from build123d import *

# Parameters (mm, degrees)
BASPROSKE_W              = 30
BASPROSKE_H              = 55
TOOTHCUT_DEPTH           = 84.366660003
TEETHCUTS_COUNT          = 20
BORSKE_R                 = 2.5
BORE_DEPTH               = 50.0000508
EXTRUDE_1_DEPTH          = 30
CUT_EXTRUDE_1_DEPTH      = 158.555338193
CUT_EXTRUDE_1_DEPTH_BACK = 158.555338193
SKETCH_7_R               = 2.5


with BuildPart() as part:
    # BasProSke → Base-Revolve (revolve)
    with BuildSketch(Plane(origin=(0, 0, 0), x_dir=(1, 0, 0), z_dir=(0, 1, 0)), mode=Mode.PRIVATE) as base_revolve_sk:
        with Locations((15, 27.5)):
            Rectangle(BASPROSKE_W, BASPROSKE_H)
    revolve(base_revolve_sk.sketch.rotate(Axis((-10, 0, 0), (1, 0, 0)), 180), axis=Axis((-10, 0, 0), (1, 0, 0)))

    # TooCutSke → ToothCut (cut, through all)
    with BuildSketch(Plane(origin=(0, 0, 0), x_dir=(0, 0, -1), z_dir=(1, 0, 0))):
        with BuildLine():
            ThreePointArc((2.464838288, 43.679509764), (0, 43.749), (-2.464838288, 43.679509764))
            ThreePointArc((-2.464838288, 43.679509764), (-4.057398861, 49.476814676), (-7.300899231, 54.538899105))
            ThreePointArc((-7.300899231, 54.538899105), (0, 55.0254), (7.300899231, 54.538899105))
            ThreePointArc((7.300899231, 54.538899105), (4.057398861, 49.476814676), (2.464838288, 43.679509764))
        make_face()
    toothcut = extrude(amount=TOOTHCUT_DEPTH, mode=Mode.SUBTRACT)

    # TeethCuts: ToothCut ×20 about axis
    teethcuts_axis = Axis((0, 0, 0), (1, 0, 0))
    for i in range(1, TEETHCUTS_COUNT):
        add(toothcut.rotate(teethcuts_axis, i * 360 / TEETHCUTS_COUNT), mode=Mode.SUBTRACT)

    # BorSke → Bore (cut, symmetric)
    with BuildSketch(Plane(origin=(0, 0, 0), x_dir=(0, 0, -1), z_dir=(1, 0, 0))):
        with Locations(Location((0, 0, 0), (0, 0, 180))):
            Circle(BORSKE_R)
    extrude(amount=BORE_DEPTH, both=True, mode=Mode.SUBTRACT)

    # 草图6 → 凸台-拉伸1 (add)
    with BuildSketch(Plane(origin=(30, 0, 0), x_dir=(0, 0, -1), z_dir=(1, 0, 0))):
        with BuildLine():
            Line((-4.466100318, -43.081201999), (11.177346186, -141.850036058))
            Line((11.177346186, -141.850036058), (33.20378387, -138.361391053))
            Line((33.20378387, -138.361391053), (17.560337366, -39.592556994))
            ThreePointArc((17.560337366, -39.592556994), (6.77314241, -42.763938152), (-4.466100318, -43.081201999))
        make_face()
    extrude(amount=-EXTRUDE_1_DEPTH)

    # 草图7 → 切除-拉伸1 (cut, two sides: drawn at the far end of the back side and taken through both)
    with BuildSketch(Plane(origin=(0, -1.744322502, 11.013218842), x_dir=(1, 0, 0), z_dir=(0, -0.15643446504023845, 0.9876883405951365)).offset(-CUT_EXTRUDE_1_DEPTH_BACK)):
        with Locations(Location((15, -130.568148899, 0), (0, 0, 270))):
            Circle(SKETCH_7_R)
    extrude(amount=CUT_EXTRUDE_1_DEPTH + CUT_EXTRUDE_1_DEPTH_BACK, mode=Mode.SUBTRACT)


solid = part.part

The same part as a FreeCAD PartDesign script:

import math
import FreeCAD as App
import Part
import Sketcher
Q = App.Units.Quantity


def add_polygon(sketch, points):
    """Adds a closed chain of lines whose ends are joined by coincident constraints."""
    first, n = sketch.GeometryCount, len(points)
    for a, b in zip(points, points[1:] + points[:1]):
        sketch.addGeometry(Part.LineSegment(App.Vector(*a, 0), App.Vector(*b, 0)), False)
    for i in range(n):
        sketch.addConstraint(Sketcher.Constraint("Coincident", first + i, 2, first + (i + 1) % n, 1))

doc = App.newDocument("Part")
body = doc.addObject("PartDesign::Body", "Body")

# Sketch on XZ plane
sketch1 = doc.addObject("Sketcher::SketchObject", "Sketch")
body.addObject(sketch1)
sketch1.AttachmentSupport = (doc.XZ_Plane, [""])
sketch1.MapMode = "FlatFace"
add_polygon(sketch1, [(0, -55), (0, 0), (30, 0), (30, -55)])  # lines 0-3
sketch1.addConstraint(Sketcher.Constraint("Vertical", 0))
sketch1.addConstraint(Sketcher.Constraint("Horizontal", 1))
sketch1.addConstraint(Sketcher.Constraint("Vertical", 2))
sketch1.addConstraint(Sketcher.Constraint("Horizontal", 3))
sketch1.addConstraint(Sketcher.Constraint("Coincident", 0, 2, -1, 1))
sketch1.addConstraint(Sketcher.Constraint("DistanceX", 1, 1, 1, 2, 30.0))
sketch1.addConstraint(Sketcher.Constraint("DistanceY", 0, 1, 0, 2, 55.0))
revolution = doc.addObject("PartDesign::Revolution", "Revolution")
body.addObject(revolution)
revolution.Profile = sketch1
revolution.ReferenceAxis = (sketch1, ["H_Axis"])
revolution.Angle = 360

# Sketch on YZ plane
sketch2 = doc.addObject("Sketcher::SketchObject", "Sketch001")
body.addObject(sketch2)
sketch2.AttachmentSupport = (doc.YZ_Plane, [""])
sketch2.MapMode = "FlatFace"
sketch2.addGeometry(Part.ArcOfCircle(Part.Circle(App.Vector(0, 0, 0), App.Vector(0, 0, 1), 43.749), math.radians(-3.22978), math.radians(3.22978)), False)
sketch2.addGeometry(Part.ArcOfCircle(Part.Circle(App.Vector(41.340468, -22.327589, 0), App.Vector(0, 0, 1), 20), math.radians(48.70611), math.radians(83.283769)), False)
sketch2.addGeometry(Part.ArcOfCircle(Part.Circle(App.Vector(0, 0, 0), App.Vector(0, 0, 1), 55.0254), math.radians(-7.624623), math.radians(7.624623)), False)
sketch2.addGeometry(Part.ArcOfCircle(Part.Circle(App.Vector(41.340468, 22.327589, 0), App.Vector(0, 0, 1), 20), math.radians(-83.283769), math.radians(-48.70611)), False)
sketch2.addConstraint(Sketcher.Constraint("Coincident", 0, 1, 1, 2))
sketch2.addConstraint(Sketcher.Constraint("Coincident", 1, 1, 2, 1))
sketch2.addConstraint(Sketcher.Constraint("Coincident", 2, 2, 3, 2))
sketch2.addConstraint(Sketcher.Constraint("Coincident", 3, 1, 0, 2))
sketch2.addConstraint(Sketcher.Constraint("Coincident", 0, 3, -1, 1))
sketch2.addConstraint(Sketcher.Constraint("Coincident", 2, 3, -1, 1))
sketch2.addConstraint(Sketcher.Constraint("Equal", 1, 3))
sketch2.addConstraint(Sketcher.Constraint("Symmetric", 1, 3, 3, 3, -1))
sketch2.addConstraint(Sketcher.Constraint("Radius", 1, 20.0))
sketch2.addConstraint(Sketcher.Constraint("Radius", 0, 43.749))
sketch2.addConstraint(Sketcher.Constraint("Radius", 2, 55.0254))
sketch2.addConstraint(Sketcher.Constraint("DistanceX", -1, 1, 1, 1, 54.538899))
sketch2.addConstraint(Sketcher.Constraint("DistanceX", -1, 1, 1, 3, 41.340468))
pocket1 = doc.addObject("PartDesign::Pocket", "Pocket")
body.addObject(pocket1)
pocket1.Profile = sketch2
pocket1.Type = "ThroughAll"
pocket1.Reversed = True
doc.recompute()

polarpattern = doc.addObject("PartDesign::PolarPattern", "PolarPattern")
body.addObject(polarpattern)
polarpattern.Originals = [pocket1]
polarpattern.Axis = (doc.X_Axis, [""])
polarpattern.Angle = 360
polarpattern.Occurrences = 20
body.Tip = polarpattern

# Sketch on YZ plane
sketch3 = doc.addObject("Sketcher::SketchObject", "Sketch002")
body.addObject(sketch3)
sketch3.AttachmentSupport = (doc.YZ_Plane, [""])
sketch3.MapMode = "FlatFace"
sketch3.addGeometry(Part.Circle(App.Vector(0, 0, 0), App.Vector(0, 0, 1), 2.5), False)
sketch3.addConstraint(Sketcher.Constraint("Coincident", 0, 3, -1, 1))
sketch3.addConstraint(Sketcher.Constraint("Diameter", 0, 5.0))
pocket2 = doc.addObject("PartDesign::Pocket", "Pocket001")
body.addObject(pocket2)
pocket2.Profile = sketch3
pocket2.Length = 100.000102
pocket2.Midplane = True

# Sketch on YZ plane
sketch4 = doc.addObject("Sketcher::SketchObject", "Sketch003")
body.addObject(sketch4)
sketch4.AttachmentSupport = (doc.YZ_Plane, [""])
sketch4.MapMode = "FlatFace"
sketch4.AttachmentOffset = App.Placement(App.Vector(0, 0, 30), App.Rotation())
sketch4.addGeometry(Part.LineSegment(App.Vector(-43.081202, 4.4661, 0), App.Vector(-141.850036, -11.177346, 0)), False)
sketch4.addGeometry(Part.LineSegment(App.Vector(-141.850036, -11.177346, 0), App.Vector(-138.361391, -33.203784, 0)), False)
sketch4.addGeometry(Part.LineSegment(App.Vector(-138.361391, -33.203784, 0), App.Vector(-39.592557, -17.560337, 0)), False)
sketch4.addGeometry(Part.ArcOfCircle(Part.Circle(App.Vector(0.446439, 0.070709, 0), App.Vector(0, 0, 1), 43.749), math.radians(174.233857), math.radians(203.766143)), False)
sketch4.addConstraint(Sketcher.Constraint("Coincident", 0, 2, 1, 1))
sketch4.addConstraint(Sketcher.Constraint("Coincident", 1, 2, 2, 1))
sketch4.addConstraint(Sketcher.Constraint("Coincident", 2, 2, 3, 2))
sketch4.addConstraint(Sketcher.Constraint("Coincident", 3, 1, 0, 1))
sketch4.addConstraint(Sketcher.Constraint("Perpendicular", 0, 1))
sketch4.addConstraint(Sketcher.Constraint("Perpendicular", 1, 2))
sketch4.addConstraint(Sketcher.Constraint("Equal", 0, 2))
sketch4.addConstraint(Sketcher.Constraint("Angle", 0, Q("-171 deg")))
sketch4.addConstraint(Sketcher.Constraint("Distance", 0, 100.0))
sketch4.addConstraint(Sketcher.Constraint("Radius", 3, 43.749))
sketch4.addConstraint(Sketcher.Constraint("Distance", 1, 22.301))
sketch4.addConstraint(Sketcher.Constraint("DistanceX", 3, 1, -1, 1, 43.081202))
sketch4.addConstraint(Sketcher.Constraint("DistanceY", -1, 1, 3, 1, 4.4661))
pad1 = doc.addObject("PartDesign::Pad", "Pad")
body.addObject(pad1)
pad1.Profile = sketch4
pad1.Length = 30
pad1.Reversed = True

# Sketch on an angled plane
sketch5 = doc.addObject("Sketcher::SketchObject", "Sketch004")
body.addObject(sketch5)
sketch5.Placement = App.Placement(App.Vector(0, -1.744322, 11.013219), App.Rotation(App.Vector(1, 0, 0), App.Vector(0, 0.987688341, 0.156434465), App.Vector(0, -0.156434465, 0.987688341), "ZXY"))
sketch5.addGeometry(Part.Circle(App.Vector(15, -130.568149, 0), App.Vector(0, 0, 1), 2.5), False)
sketch5.addConstraint(Sketcher.Constraint("Diameter", 0, 5.0))
sketch5.addConstraint(Sketcher.Constraint("DistanceX", -1, 1, 0, 3, 15.0))
sketch5.addConstraint(Sketcher.Constraint("DistanceY", 0, 3, -1, 1, 130.568149))
pocket3 = doc.addObject("PartDesign::Pocket", "Pocket002")
body.addObject(pocket3)
pocket3.Profile = sketch5
pocket3.Type = "ThroughAll"
pocket3.Midplane = True

doc.recompute()
